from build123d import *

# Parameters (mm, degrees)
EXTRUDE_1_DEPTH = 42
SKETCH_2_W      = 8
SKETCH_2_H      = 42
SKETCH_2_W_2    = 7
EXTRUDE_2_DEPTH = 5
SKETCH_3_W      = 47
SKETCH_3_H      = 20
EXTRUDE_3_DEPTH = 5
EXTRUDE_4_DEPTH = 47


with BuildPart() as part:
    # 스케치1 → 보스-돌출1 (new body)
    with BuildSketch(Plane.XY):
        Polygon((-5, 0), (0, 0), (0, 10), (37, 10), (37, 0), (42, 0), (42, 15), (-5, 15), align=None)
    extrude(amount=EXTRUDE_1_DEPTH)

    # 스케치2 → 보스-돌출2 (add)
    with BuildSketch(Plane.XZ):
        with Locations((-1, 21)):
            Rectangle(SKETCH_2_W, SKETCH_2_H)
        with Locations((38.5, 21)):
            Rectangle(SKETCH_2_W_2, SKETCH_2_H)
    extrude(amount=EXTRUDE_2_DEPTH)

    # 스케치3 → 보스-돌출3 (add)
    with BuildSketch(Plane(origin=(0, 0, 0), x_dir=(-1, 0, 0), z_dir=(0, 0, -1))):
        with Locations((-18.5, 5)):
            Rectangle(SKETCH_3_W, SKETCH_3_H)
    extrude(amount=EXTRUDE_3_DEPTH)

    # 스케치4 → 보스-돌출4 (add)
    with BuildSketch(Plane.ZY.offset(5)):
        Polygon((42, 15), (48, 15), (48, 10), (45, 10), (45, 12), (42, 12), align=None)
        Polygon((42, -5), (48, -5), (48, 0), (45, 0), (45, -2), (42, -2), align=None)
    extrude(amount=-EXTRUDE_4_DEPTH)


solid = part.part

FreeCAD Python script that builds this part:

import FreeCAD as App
import Part
import Sketcher

V = App.Vector

doc = App.newDocument("Part")
body = doc.addObject("PartDesign::Body", "Body")

# Sketch on XY plane
sketch1 = body.newObject("Sketcher::SketchObject", "Sketch")
sketch1.AttachmentSupport = (doc.getObject("XY_Plane"), [""])
sketch1.MapMode = "FlatFace"
sketch1.addGeometry(Part.LineSegment(V(-5, 0, 0), V(0, 0, 0)), False)
sketch1.addGeometry(Part.LineSegment(V(0, 0, 0), V(0, 10, 0)), False)
sketch1.addGeometry(Part.LineSegment(V(0, 10, 0), V(37, 10, 0)), False)
sketch1.addGeometry(Part.LineSegment(V(37, 10, 0), V(37, 0, 0)), False)
sketch1.addGeometry(Part.LineSegment(V(37, 0, 0), V(42, 0, 0)), False)
sketch1.addGeometry(Part.LineSegment(V(42, 0, 0), V(42, 15, 0)), False)
sketch1.addGeometry(Part.LineSegment(V(42, 15, 0), V(-5, 15, 0)), False)
sketch1.addGeometry(Part.LineSegment(V(-5, 15, 0), V(-5, 0, 0)), False)
sketch1.addConstraint(Sketcher.Constraint("Coincident", 0, 2, 1, 1))
sketch1.addConstraint(Sketcher.Constraint("Coincident", 1, 2, 2, 1))
sketch1.addConstraint(Sketcher.Constraint("Coincident", 2, 2, 3, 1))
sketch1.addConstraint(Sketcher.Constraint("Coincident", 3, 2, 4, 1))
sketch1.addConstraint(Sketcher.Constraint("Coincident", 4, 2, 5, 1))
sketch1.addConstraint(Sketcher.Constraint("Coincident", 5, 2, 6, 1))
sketch1.addConstraint(Sketcher.Constraint("Coincident", 6, 2, 7, 1))
sketch1.addConstraint(Sketcher.Constraint("Coincident", 7, 2, 0, 1))
sketch1.addConstraint(Sketcher.Constraint("Horizontal", 0))
sketch1.addConstraint(Sketcher.Constraint("Vertical", 1))
sketch1.addConstraint(Sketcher.Constraint("Horizontal", 2))
sketch1.addConstraint(Sketcher.Constraint("Vertical", 3))
sketch1.addConstraint(Sketcher.Constraint("Horizontal", 4))
sketch1.addConstraint(Sketcher.Constraint("Vertical", 5))
sketch1.addConstraint(Sketcher.Constraint("Horizontal", 6))
sketch1.addConstraint(Sketcher.Constraint("Vertical", 7))
sketch1.addConstraint(Sketcher.Constraint("Coincident", 0, 2, -1, 1))
sketch1.addConstraint(Sketcher.Constraint("PointOnObject", 3, 2, -1))
sketch1.addConstraint(Sketcher.Constraint("Equal", 0, 4))
sketch1.addConstraint(Sketcher.Constraint("DistanceX", 0, 1, 0, 2, 5.0))
sketch1.addConstraint(Sketcher.Constraint("DistanceX", 2, 1, 2, 2, 37.0))
sketch1.addConstraint(Sketcher.Constraint("DistanceY", 1, 1, 1, 2, 10.0))
sketch1.addConstraint(Sketcher.Constraint("DistanceY", 5, 1, 5, 2, 15.0))
pad1 = body.newObject("PartDesign::Pad", "Pad")
pad1.Profile = sketch1
pad1.Length = 42

# Sketch on XZ plane
sketch2 = body.newObject("Sketcher::SketchObject", "Sketch001")
sketch2.AttachmentSupport = (doc.getObject("XZ_Plane"), [""])
sketch2.MapMode = "FlatFace"
sketch2.addGeometry(Part.LineSegment(V(-5, 42, 0), V(-5, 0, 0)), False)
sketch2.addGeometry(Part.LineSegment(V(-5, 0, 0), V(3, 0, 0)), False)
sketch2.addGeometry(Part.LineSegment(V(3, 0, 0), V(3, 42, 0)), False)
sketch2.addGeometry(Part.LineSegment(V(3, 42, 0), V(-5, 42, 0)), False)
sketch2.addGeometry(Part.LineSegment(V(35, 42, 0), V(35, 0, 0)), False)
sketch2.addGeometry(Part.LineSegment(V(35, 0, 0), V(42, 0, 0)), False)
sketch2.addGeometry(Part.LineSegment(V(42, 0, 0), V(42, 42, 0)), False)
sketch2.addGeometry(Part.LineSegment(V(42, 42, 0), V(35, 42, 0)), False)
sketch2.addConstraint(Sketcher.Constraint("Coincident", 0, 2, 1, 1))
sketch2.addConstraint(Sketcher.Constraint("Coincident", 1, 2, 2, 1))
sketch2.addConstraint(Sketcher.Constraint("Coincident", 2, 2, 3, 1))
sketch2.addConstraint(Sketcher.Constraint("Coincident", 3, 2, 0, 1))
sketch2.addConstraint(Sketcher.Constraint("Coincident", 4, 2, 5, 1))
sketch2.addConstraint(Sketcher.Constraint("Coincident", 5, 2, 6, 1))
sketch2.addConstraint(Sketcher.Constraint("Coincident", 6, 2, 7, 1))
sketch2.addConstraint(Sketcher.Constraint("Coincident", 7, 2, 4, 1))
sketch2.addConstraint(Sketcher.Constraint("Vertical", 0))
sketch2.addConstraint(Sketcher.Constraint("Horizontal", 1))
sketch2.addConstraint(Sketcher.Constraint("Vertical", 2))
sketch2.addConstraint(Sketcher.Constraint("Horizontal", 3))
sketch2.addConstraint(Sketcher.Constraint("Vertical", 4))
sketch2.addConstraint(Sketcher.Constraint("Horizontal", 5))
sketch2.addConstraint(Sketcher.Constraint("Vertical", 6))
sketch2.addConstraint(Sketcher.Constraint("Horizontal", 7))
sketch2.addConstraint(Sketcher.Constraint("PointOnObject", 0, 2, -1))
sketch2.addConstraint(Sketcher.Constraint("PointOnObject", 4, 2, -1))
sketch2.addConstraint(Sketcher.Constraint("Horizontal", 3, 2, 6, 2))
sketch2.addConstraint(Sketcher.Constraint("DistanceX", 1, 1, 1, 2, 8.0))
sketch2.addConstraint(Sketcher.Constraint("DistanceX", 5, 1, 5, 2, 7.0))
sketch2.addConstraint(Sketcher.Constraint("DistanceY", 0, 2, 0, 1, 42.0))
sketch2.addConstraint(Sketcher.Constraint("DistanceX", 0, 2, -1, 1, 5.0))
sketch2.addConstraint(Sketcher.Constraint("DistanceX", -1, 1, 4, 2, 35.0))
pad2 = body.newObject("PartDesign::Pad", "Pad001")
pad2.Profile = sketch2
pad2.Length = 5

# Sketch on XY plane
sketch3 = body.newObject("Sketcher::SketchObject", "Sketch002")
sketch3.AttachmentSupport = (doc.getObject("XY_Plane"), [""])
sketch3.MapMode = "FlatFace"
sketch3.addGeometry(Part.LineSegment(V(42, 15, 0), V(42, -5, 0)), False)
sketch3.addGeometry(Part.LineSegment(V(42, -5, 0), V(-5, -5, 0)), False)
sketch3.addGeometry(Part.LineSegment(V(-5, -5, 0), V(-5, 15, 0)), False)
sketch3.addGeometry(Part.LineSegment(V(-5, 15, 0), V(42, 15, 0)), False)
sketch3.addConstraint(Sketcher.Constraint("Coincident", 0, 2, 1, 1))
sketch3.addConstraint(Sketcher.Constraint("Coincident", 1, 2, 2, 1))
sketch3.addConstraint(Sketcher.Constraint("Coincident", 2, 2, 3, 1))
sketch3.addConstraint(Sketcher.Constraint("Coincident", 3, 2, 0, 1))
sketch3.addConstraint(Sketcher.Constraint("Vertical", 0))
sketch3.addConstraint(Sketcher.Constraint("Horizontal", 1))
sketch3.addConstraint(Sketcher.Constraint("Vertical", 2))
sketch3.addConstraint(Sketcher.Constraint("Horizontal", 3))
sketch3.addConstraint(Sketcher.Constraint("DistanceX", 1, 2, 1, 1, 47.0))
sketch3.addConstraint(Sketcher.Constraint("DistanceY", 0, 2, 0, 1, 20.0))
sketch3.addConstraint(Sketcher.Constraint("DistanceX", -1, 1, 0, 2, 42.0))
sketch3.addConstraint(Sketcher.Constraint("DistanceY", 0, 2, -1, 1, 5.0))
pad3 = body.newObject("PartDesign::Pad", "Pad002")
pad3.Profile = sketch3
pad3.Length = 5
pad3.Reversed = True

# Sketch on YZ plane
sketch4 = body.newObject("Sketcher::SketchObject", "Sketch003")
sketch4.AttachmentSupport = (doc.getObject("YZ_Plane"), [""])
sketch4.MapMode = "FlatFace"
sketch4.AttachmentOffset = App.Placement(V(0, 0, -5), App.Rotation())
sketch4.addGeometry(Part.LineSegment(V(15, 48, 0), V(15, 42, 0)), False)
sketch4.addGeometry(Part.LineSegment(V(15, 42, 0), V(12, 42, 0)), False)
sketch4.addGeometry(Part.LineSegment(V(12, 42, 0), V(12, 45, 0)), False)
sketch4.addGeometry(Part.LineSegment(V(12, 45, 0), V(10, 45, 0)), False)
sketch4.addGeometry(Part.LineSegment(V(10, 45, 0), V(10, 48, 0)), False)
sketch4.addGeometry(Part.LineSegment(V(10, 48, 0), V(15, 48, 0)), False)
sketch4.addGeometry(Part.LineSegment(V(-5, 42, 0), V(-5, 48, 0)), False)
sketch4.addGeometry(Part.LineSegment(V(-5, 48, 0), V(0, 48, 0)), False)
sketch4.addGeometry(Part.LineSegment(V(0, 48, 0), V(0, 45, 0)), False)
sketch4.addGeometry(Part.LineSegment(V(0, 45, 0), V(-2, 45, 0)), False)
sketch4.addGeometry(Part.LineSegment(V(-2, 45, 0), V(-2, 42, 0)), False)
sketch4.addGeometry(Part.LineSegment(V(-2, 42, 0), V(-5, 42, 0)), False)
sketch4.addConstraint(Sketcher.Constraint("Coincident", 0, 2, 1, 1))
sketch4.addConstraint(Sketcher.Constraint("Coincident", 1, 2, 2, 1))
sketch4.addConstraint(Sketcher.Constraint("Coincident", 2, 2, 3, 1))
sketch4.addConstraint(Sketcher.Constraint("Coincident", 3, 2, 4, 1))
sketch4.addConstraint(Sketcher.Constraint("Coincident", 4, 2, 5, 1))
sketch4.addConstraint(Sketcher.Constraint("Coincident", 5, 2, 0, 1))
sketch4.addConstraint(Sketcher.Constraint("Coincident", 6, 2, 7, 1))
sketch4.addConstraint(Sketcher.Constraint("Coincident", 7, 2, 8, 1))
sketch4.addConstraint(Sketcher.Constraint("Coincident", 8, 2, 9, 1))
sketch4.addConstraint(Sketcher.Constraint("Coincident", 9, 2, 10, 1))
sketch4.addConstraint(Sketcher.Constraint("Coincident", 10, 2, 11, 1))
sketch4.addConstraint(Sketcher.Constraint("Coincident", 11, 2, 6, 1))
sketch4.addConstraint(Sketcher.Constraint("Vertical", 0))
sketch4.addConstraint(Sketcher.Constraint("Horizontal", 1))
sketch4.addConstraint(Sketcher.Constraint("Vertical", 2))
sketch4.addConstraint(Sketcher.Constraint("Horizontal", 3))
sketch4.addConstraint(Sketcher.Constraint("Vertical", 4))
sketch4.addConstraint(Sketcher.Constraint("Horizontal", 5))
sketch4.addConstraint(Sketcher.Constraint("Vertical", 6))
sketch4.addConstraint(Sketcher.Constraint("Horizontal", 7))
sketch4.addConstraint(Sketcher.Constraint("Vertical", 8))
sketch4.addConstraint(Sketcher.Constraint("Horizontal", 9))
sketch4.addConstraint(Sketcher.Constraint("Vertical", 10))
sketch4.addConstraint(Sketcher.Constraint("Horizontal", 11))
sketch4.addConstraint(Sketcher.Constraint("PointOnObject", 7, 2, -2))
sketch4.addConstraint(Sketcher.Constraint("Horizontal", 5, 2, 6, 2))
sketch4.addConstraint(Sketcher.Constraint("Horizontal", 3, 2, 8, 2))
sketch4.addConstraint(Sketcher.Constraint("Horizontal", 1, 2, 10, 2))
sketch4.addConstraint(Sketcher.Constraint("Equal", 5, 7))
sketch4.addConstraint(Sketcher.Constraint("Equal", 3, 9))
sketch4.addConstraint(Sketcher.Constraint("Equal", 11, 2))
sketch4.addConstraint(Sketcher.Constraint("Equal", 2, 4))
sketch4.addConstraint(Sketcher.Constraint("DistanceX", 1, 2, 1, 1, 3.0))
sketch4.addConstraint(Sketcher.Constraint("DistanceX", 3, 2, 3, 1, 2.0))
sketch4.addConstraint(Sketcher.Constraint("DistanceX", -1, 1, 0, 2, 15.0))
sketch4.addConstraint(Sketcher.Constraint("DistanceY", -1, 1, 0, 2, 42.0))
pad4 = body.newObject("PartDesign::Pad", "Pad003")
pad4.Profile = sketch4
pad4.Length = 47

doc.recompute()
